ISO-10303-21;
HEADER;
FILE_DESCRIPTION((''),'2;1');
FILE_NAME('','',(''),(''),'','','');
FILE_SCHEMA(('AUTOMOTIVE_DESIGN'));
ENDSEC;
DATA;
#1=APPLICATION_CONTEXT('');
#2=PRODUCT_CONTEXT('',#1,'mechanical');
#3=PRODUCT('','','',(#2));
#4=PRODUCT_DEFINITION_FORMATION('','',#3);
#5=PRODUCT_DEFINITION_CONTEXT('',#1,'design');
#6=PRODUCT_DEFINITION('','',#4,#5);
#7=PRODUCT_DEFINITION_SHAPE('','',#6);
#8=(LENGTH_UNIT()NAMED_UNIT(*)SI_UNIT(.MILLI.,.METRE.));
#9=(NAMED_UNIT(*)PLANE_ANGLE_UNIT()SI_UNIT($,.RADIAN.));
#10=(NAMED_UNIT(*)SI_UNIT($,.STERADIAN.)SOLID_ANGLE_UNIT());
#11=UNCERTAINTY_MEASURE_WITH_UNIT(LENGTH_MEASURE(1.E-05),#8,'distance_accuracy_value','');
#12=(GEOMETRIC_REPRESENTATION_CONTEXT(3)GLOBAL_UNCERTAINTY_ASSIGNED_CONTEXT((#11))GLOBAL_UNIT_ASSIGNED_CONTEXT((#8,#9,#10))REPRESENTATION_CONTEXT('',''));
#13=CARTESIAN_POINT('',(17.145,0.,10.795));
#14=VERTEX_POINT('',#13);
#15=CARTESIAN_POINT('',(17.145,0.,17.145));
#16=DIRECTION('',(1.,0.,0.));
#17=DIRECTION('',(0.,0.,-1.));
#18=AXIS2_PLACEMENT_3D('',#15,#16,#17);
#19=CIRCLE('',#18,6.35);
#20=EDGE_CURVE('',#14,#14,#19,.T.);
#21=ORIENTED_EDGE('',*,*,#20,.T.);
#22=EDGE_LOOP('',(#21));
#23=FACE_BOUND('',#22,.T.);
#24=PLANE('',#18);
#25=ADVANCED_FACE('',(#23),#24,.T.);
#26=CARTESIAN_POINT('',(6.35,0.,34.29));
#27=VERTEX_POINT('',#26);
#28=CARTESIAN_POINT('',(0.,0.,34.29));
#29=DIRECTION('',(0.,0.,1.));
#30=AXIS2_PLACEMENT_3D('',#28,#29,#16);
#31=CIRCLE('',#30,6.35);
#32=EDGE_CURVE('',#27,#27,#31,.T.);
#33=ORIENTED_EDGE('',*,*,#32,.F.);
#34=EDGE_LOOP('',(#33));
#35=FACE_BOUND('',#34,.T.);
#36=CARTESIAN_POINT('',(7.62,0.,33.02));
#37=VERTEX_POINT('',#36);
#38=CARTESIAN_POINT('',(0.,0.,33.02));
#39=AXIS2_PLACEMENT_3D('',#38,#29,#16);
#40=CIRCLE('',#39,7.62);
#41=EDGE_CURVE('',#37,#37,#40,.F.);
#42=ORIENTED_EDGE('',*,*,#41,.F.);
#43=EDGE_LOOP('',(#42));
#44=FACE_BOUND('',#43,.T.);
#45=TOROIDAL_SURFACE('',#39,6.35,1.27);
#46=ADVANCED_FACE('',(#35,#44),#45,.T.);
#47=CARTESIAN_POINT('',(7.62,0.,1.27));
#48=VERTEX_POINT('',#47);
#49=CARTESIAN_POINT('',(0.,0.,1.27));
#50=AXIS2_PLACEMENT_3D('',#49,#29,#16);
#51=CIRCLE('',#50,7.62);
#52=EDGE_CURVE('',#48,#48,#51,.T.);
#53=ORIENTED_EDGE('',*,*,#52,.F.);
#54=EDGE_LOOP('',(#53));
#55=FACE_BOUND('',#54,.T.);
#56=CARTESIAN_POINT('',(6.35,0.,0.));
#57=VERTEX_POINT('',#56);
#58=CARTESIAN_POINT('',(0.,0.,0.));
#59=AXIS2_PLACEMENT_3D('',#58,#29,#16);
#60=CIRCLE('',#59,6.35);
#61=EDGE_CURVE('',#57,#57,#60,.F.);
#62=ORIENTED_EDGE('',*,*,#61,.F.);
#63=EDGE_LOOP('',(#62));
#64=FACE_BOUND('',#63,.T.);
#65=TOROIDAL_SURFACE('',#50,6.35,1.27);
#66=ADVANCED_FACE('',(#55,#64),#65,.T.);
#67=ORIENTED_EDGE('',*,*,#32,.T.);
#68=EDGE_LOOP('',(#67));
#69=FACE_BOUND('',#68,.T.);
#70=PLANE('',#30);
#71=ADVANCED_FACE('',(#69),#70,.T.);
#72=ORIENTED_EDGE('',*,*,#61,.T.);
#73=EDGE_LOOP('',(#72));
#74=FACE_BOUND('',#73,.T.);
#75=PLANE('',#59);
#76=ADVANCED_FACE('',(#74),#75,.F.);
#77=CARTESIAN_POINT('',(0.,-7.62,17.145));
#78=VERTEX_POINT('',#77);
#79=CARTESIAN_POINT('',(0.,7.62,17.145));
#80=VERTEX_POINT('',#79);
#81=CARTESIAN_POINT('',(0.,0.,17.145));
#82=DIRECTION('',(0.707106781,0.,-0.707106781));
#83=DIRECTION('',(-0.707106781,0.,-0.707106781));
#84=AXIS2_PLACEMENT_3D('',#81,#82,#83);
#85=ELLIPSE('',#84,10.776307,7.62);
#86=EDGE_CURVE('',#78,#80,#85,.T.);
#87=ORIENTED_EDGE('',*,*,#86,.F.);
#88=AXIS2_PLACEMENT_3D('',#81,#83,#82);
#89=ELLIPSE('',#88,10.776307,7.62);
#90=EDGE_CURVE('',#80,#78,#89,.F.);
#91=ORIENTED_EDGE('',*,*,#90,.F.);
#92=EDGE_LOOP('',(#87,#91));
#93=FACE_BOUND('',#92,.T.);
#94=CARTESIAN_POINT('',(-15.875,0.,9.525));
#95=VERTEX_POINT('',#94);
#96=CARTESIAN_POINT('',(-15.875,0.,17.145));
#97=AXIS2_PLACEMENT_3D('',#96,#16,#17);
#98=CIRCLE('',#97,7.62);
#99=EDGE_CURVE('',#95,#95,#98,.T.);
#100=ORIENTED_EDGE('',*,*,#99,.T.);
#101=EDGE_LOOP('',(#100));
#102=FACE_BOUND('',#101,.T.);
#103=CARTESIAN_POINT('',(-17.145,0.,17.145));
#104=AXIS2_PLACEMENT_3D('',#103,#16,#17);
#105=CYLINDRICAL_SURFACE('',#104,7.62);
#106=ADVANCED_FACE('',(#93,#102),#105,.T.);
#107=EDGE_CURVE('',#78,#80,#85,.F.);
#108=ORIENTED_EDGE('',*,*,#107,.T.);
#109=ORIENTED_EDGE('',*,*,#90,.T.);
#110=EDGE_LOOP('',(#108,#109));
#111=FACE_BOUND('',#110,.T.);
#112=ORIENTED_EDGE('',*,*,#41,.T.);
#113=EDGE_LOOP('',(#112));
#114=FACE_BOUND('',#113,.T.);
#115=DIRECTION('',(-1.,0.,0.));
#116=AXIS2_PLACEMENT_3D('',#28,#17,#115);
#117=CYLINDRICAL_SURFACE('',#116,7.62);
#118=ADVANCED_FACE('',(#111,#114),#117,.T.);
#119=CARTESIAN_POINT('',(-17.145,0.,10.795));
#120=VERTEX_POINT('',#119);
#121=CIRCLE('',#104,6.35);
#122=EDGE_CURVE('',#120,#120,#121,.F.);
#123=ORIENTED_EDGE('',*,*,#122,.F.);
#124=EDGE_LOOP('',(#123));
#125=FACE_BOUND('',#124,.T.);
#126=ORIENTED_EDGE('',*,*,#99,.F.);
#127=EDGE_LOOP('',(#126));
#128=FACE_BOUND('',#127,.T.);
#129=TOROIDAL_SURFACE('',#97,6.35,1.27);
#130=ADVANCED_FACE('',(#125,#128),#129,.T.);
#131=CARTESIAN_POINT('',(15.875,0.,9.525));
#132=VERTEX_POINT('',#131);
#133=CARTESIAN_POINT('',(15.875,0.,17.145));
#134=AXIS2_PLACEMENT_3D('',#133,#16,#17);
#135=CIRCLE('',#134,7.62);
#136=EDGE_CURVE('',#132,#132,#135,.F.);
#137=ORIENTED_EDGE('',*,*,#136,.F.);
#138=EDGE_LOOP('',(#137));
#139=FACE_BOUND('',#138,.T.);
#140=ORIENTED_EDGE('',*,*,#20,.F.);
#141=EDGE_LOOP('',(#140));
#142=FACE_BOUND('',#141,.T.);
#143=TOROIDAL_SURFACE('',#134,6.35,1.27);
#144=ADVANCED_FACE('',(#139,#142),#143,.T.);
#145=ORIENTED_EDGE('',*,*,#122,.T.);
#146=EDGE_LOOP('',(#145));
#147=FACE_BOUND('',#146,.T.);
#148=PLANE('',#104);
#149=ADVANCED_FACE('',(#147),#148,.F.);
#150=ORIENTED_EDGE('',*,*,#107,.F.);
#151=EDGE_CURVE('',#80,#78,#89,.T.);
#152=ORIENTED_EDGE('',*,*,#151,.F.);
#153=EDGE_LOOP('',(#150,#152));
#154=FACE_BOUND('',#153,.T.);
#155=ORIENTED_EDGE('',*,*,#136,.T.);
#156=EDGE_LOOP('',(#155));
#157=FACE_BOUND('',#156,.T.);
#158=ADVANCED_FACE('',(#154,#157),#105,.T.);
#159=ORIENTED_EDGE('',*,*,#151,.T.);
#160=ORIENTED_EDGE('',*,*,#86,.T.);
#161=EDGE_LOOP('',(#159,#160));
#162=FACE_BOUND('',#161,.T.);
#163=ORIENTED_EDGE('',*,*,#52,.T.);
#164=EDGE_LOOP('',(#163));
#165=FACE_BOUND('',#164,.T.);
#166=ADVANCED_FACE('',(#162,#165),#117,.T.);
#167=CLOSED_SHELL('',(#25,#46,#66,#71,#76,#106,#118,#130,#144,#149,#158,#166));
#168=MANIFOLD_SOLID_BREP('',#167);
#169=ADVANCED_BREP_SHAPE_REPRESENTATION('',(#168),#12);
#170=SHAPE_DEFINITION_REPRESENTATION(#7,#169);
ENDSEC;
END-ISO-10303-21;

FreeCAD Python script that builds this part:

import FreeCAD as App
import Part
import Sketcher

V = App.Vector
Q = App.Units.Quantity


def edges_at(feature, points):
    """Names of the edges that pass closest to the given points."""
    edges = feature.Shape.Edges
    near = lambda p: min(range(len(edges)), key=lambda i: edges[i].distToShape(Part.Vertex(*p))[0])
    return sorted({f"Edge{near(p) + 1}" for p in points})

doc = App.newDocument("Part")
body = doc.addObject("PartDesign::Body", "Body")

sketch1 = doc.addObject("Sketcher::SketchObject", "Sketch")
body.addObject(sketch1)
sketch1.AttachmentSupport = (doc.XY_Plane, [""])
sketch1.MapMode = "FlatFace"
sketch1.addGeometry(Part.Circle(V(0, 0, 0), V(0, 0, 1), 8), False)
sketch1.addConstraint([
    Sketcher.Constraint("Coincident", 0, 3, -1, 1),
    Sketcher.Constraint("Diameter", 0, Q("0.6 in")),
])
pad1 = doc.addObject("PartDesign::Pad", "Pad")
body.addObject(pad1)
pad1.Profile = sketch1
pad1.Length = Q("1.35 in")

sketch2 = doc.addObject("Sketcher::SketchObject", "Sketch001")
body.addObject(sketch2)
sketch2.AttachmentSupport = (doc.YZ_Plane, [""])
sketch2.MapMode = "FlatFace"
sketch2.addGeometry(Part.Circle(V(0, 17, 0), V(0, 0, 1), 8), False)
sketch2.addConstraint([
    Sketcher.Constraint("PointOnObject", 0, 3, -2),
    Sketcher.Constraint("Diameter", 0, Q("0.6 in")),
    Sketcher.Constraint("DistanceY", -1, 1, 0, 3, Q("0.675 in")),
])
pad2 = doc.addObject("PartDesign::Pad", "Pad001")
body.addObject(pad2)
pad2.Profile = sketch2
pad2.Type = "TwoLengths"
pad2.Length = Q("0.675 in")
pad2.Length2 = Q("0.675 in")
doc.recompute()

fillet = doc.addObject("PartDesign::Fillet", "Fillet")
body.addObject(fillet)
fillet.Base = (pad2, edges_at(pad2, [
    (-7.62, 0, 0),
    (-7.62, 0, 34.29),
    (-17.145, 0, 24.765),
    (17.145, 0, 24.765),
]))
fillet.Radius = Q("0.05 in")

doc.recompute()
